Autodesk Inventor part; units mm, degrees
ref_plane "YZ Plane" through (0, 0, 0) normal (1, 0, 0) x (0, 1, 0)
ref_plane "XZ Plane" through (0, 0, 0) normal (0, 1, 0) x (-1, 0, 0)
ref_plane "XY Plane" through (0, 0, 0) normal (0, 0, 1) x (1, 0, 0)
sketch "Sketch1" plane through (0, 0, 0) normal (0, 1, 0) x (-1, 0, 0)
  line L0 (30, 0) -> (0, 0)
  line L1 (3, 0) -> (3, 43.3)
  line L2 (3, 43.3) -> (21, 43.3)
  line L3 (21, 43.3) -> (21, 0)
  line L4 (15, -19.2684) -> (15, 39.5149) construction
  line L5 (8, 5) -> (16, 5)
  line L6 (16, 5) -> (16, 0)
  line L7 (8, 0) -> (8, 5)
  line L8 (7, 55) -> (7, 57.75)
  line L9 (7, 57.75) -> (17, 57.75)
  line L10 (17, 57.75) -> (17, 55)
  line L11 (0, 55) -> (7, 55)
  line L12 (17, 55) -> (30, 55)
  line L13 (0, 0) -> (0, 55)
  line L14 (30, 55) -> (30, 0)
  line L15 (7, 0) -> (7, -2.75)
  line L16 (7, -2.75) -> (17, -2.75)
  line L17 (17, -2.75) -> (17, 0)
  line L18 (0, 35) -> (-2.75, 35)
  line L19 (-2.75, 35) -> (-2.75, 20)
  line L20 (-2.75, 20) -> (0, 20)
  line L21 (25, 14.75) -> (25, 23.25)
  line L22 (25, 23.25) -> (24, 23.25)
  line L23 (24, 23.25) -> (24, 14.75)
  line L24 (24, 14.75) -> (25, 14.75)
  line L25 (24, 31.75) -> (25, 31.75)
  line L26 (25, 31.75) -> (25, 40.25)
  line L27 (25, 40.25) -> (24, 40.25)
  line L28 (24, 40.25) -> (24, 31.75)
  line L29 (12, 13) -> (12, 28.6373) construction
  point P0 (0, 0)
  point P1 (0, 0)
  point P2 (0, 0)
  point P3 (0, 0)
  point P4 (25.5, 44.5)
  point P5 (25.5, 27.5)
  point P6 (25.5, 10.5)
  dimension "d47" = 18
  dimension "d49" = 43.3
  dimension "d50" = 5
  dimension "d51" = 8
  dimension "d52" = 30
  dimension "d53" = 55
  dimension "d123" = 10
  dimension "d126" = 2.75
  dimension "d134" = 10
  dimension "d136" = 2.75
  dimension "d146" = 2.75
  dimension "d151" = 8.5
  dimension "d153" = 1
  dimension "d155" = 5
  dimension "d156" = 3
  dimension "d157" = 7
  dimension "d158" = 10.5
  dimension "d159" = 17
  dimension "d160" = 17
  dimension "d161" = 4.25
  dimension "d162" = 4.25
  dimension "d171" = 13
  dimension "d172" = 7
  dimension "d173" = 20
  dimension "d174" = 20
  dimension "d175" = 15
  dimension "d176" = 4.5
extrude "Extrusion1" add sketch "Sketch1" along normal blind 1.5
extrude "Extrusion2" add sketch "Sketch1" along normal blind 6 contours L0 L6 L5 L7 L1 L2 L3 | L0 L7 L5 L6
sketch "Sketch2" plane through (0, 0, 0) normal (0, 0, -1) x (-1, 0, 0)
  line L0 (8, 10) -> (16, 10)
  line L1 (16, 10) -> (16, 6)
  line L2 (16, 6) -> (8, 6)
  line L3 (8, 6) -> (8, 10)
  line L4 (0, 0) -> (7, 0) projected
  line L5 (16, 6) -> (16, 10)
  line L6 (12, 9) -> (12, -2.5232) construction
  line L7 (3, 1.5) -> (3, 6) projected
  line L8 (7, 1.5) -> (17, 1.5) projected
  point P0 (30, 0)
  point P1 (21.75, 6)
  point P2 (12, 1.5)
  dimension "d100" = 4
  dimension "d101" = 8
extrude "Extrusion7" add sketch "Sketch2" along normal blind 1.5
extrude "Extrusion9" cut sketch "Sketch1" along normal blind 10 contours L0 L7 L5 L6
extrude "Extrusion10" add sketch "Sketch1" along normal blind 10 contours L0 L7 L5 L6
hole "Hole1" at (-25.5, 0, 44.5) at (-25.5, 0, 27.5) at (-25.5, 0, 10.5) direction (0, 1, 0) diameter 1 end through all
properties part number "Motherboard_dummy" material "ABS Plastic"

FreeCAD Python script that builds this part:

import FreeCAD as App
import Part
import Sketcher
Q = App.Units.Quantity


def add_polygon(sketch, points):
    """Adds a closed chain of lines whose ends are joined by coincident constraints."""
    first, n = sketch.GeometryCount, len(points)
    for a, b in zip(points, points[1:] + points[:1]):
        sketch.addGeometry(Part.LineSegment(App.Vector(*a, 0), App.Vector(*b, 0)), False)
    for i in range(n):
        sketch.addConstraint(Sketcher.Constraint("Coincident", first + i, 2, first + (i + 1) % n, 1))

doc = App.newDocument("Part")
body = doc.addObject("PartDesign::Body", "Body")
body.AllowCompound = True

# Sketch on XZ plane
sketch1 = doc.addObject("Sketcher::SketchObject", "Sketch")
body.addObject(sketch1)
sketch1.AttachmentSupport = (doc.XZ_Plane, [""])
sketch1.MapMode = "FlatFace"
add_polygon(sketch1, [(-30, 0), (-30, 55), (-17, 55), (-17, 57.8), (-7, 57.8), (-7, 55), (0, 55), (0, 35), (2.8, 35), (2.8, 20), (0, 20), (0, 0), (-7, 0), (-7, -2.8), (-17, -2.8), (-17, 0)])  # lines 0-15
add_polygon(sketch1, [(-25, 23.2), (-25, 14.8), (-24, 14.8), (-24, 23.2)])  # lines 16-19
add_polygon(sketch1, [(-25, 31.8), (-24, 31.8), (-24, 40.2), (-25, 40.2)])  # lines 20-23
sketch1.addConstraint([
    Sketcher.Constraint("Vertical", 0),
    Sketcher.Constraint("Horizontal", 1),
    Sketcher.Constraint("Vertical", 2),
    Sketcher.Constraint("Horizontal", 3),
    Sketcher.Constraint("Vertical", 4),
    Sketcher.Constraint("Horizontal", 5),
    Sketcher.Constraint("Vertical", 6),
    Sketcher.Constraint("Horizontal", 7),
    Sketcher.Constraint("Vertical", 8),
    Sketcher.Constraint("Horizontal", 9),
    Sketcher.Constraint("Vertical", 10),
    Sketcher.Constraint("Horizontal", 11),
    Sketcher.Constraint("Vertical", 12),
    Sketcher.Constraint("Horizontal", 13),
    Sketcher.Constraint("Vertical", 14),
    Sketcher.Constraint("Horizontal", 15),
    Sketcher.Constraint("Vertical", 16),
    Sketcher.Constraint("Horizontal", 17),
    Sketcher.Constraint("Vertical", 18),
    Sketcher.Constraint("Horizontal", 19),
    Sketcher.Constraint("Horizontal", 20),
    Sketcher.Constraint("Vertical", 21),
    Sketcher.Constraint("Horizontal", 22),
    Sketcher.Constraint("Vertical", 23),
    Sketcher.Constraint("Coincident", 10, 2, -1, 1),
    Sketcher.Constraint("PointOnObject", 5, 2, -2),
    Sketcher.Constraint("PointOnObject", 14, 2, -1),
    Sketcher.Constraint("Horizontal", 1, 2, 4, 2),
    Sketcher.Constraint("Vertical", 4, 2, 11, 2),
    Sketcher.Constraint("Vertical", 2, 2, 13, 2),
    Sketcher.Constraint("Vertical", 18, 2, 20, 2),
    Sketcher.Constraint("Vertical", 19, 2, 22, 2),
    Sketcher.Constraint("Equal", 9, 2),
    Sketcher.Constraint("Equal", 6, 10),
    Sketcher.Constraint("Equal", 4, 12),
    Sketcher.Constraint("Equal", 18, 21),
    Sketcher.Constraint("DistanceX", 1, 1, 1, 2, Q("13 mm")),
    Sketcher.Constraint("DistanceX", 3, 1, 3, 2, Q("10 mm")),
    Sketcher.Constraint("DistanceX", 5, 1, 5, 2, Q("7 mm")),
    Sketcher.Constraint("DistanceX", 17, 1, 17, 2, Q("1 mm")),
    Sketcher.Constraint("DistanceY", 0, 1, 0, 2, Q("55 mm")),
    Sketcher.Constraint("DistanceY", 6, 2, 6, 1, Q("20 mm")),
    Sketcher.Constraint("DistanceY", 16, 2, 16, 1, Q("8.5 mm")),
    Sketcher.Constraint("DistanceX", 15, 2, 16, 2, Q("5 mm")),
    Sketcher.Constraint("DistanceY", 17, 2, 20, 2, Q("17 mm")),
    Sketcher.Constraint("DistanceX", 7, 1, 7, 2, Q("2.75 mm")),
    Sketcher.Constraint("DistanceY", 13, 2, 16, 2, Q("17.5 mm")),
])
pad1 = doc.addObject("PartDesign::Pad", "Pad")
body.addObject(pad1)
pad1.Profile = sketch1
pad1.Length = 1.5
pad1.Reversed = True

# Sketch on XZ plane
sketch2 = doc.addObject("Sketcher::SketchObject", "Sketch001")
body.addObject(sketch2)
sketch2.AttachmentSupport = (doc.XZ_Plane, [""])
sketch2.MapMode = "FlatFace"
add_polygon(sketch2, [(-21, 0), (-21, 43), (-3, 43), (-3, 0)])  # lines 0-3
sketch2.addConstraint([
    Sketcher.Constraint("Vertical", 0),
    Sketcher.Constraint("Horizontal", 1),
    Sketcher.Constraint("Vertical", 2),
    Sketcher.Constraint("Horizontal", 3),
    Sketcher.Constraint("PointOnObject", 2, 2, -1),
    Sketcher.Constraint("DistanceX", 1, 1, 1, 2, Q("18 mm")),
    Sketcher.Constraint("DistanceY", 0, 1, 0, 2, Q("43.3 mm")),
    Sketcher.Constraint("DistanceX", 1, 2, -1, 1, Q("3 mm")),
])
pad2 = doc.addObject("PartDesign::Pad", "Pad001")
body.addObject(pad2)
pad2.Profile = sketch2
pad2.Length = 6
pad2.Reversed = True

# Sketch on XY plane
sketch3 = doc.addObject("Sketcher::SketchObject", "Sketch002")
body.addObject(sketch3)
sketch3.AttachmentSupport = (doc.XY_Plane, [""])
sketch3.MapMode = "FlatFace"
add_polygon(sketch3, [(-16, 10), (-8, 10), (-8, 6), (-16, 6)])  # lines 0-3
sketch3.addConstraint([
    Sketcher.Constraint("Horizontal", 0),
    Sketcher.Constraint("Vertical", 1),
    Sketcher.Constraint("Horizontal", 2),
    Sketcher.Constraint("Vertical", 3),
    Sketcher.Constraint("DistanceX", 0, 1, 0, 2, Q("8 mm")),
    Sketcher.Constraint("DistanceY", 1, 2, 1, 1, Q("4 mm")),
    Sketcher.Constraint("DistanceX", 0, 2, -1, 1, Q("8 mm")),
    Sketcher.Constraint("DistanceY", -1, 1, 0, 2, Q("10 mm")),
])
pad3 = doc.addObject("PartDesign::Pad", "Pad002")
body.addObject(pad3)
pad3.Profile = sketch3
pad3.Length = 1.5
pad3.Reversed = True

# Sketch on XZ plane
sketch4 = doc.addObject("Sketcher::SketchObject", "Sketch003")
body.addObject(sketch4)
sketch4.AttachmentSupport = (doc.XZ_Plane, [""])
sketch4.MapMode = "FlatFace"
add_polygon(sketch4, [(-8, 0), (-16, 0), (-16, 5), (-8, 5)])  # lines 0-3
sketch4.addConstraint([
    Sketcher.Constraint("Horizontal", 0),
    Sketcher.Constraint("Vertical", 1),
    Sketcher.Constraint("Horizontal", 2),
    Sketcher.Constraint("Vertical", 3),
    Sketcher.Constraint("PointOnObject", 0, 2, -1),
    Sketcher.Constraint("DistanceX", 0, 2, 0, 1, Q("8 mm")),
    Sketcher.Constraint("DistanceY", 1, 1, 1, 2, Q("5 mm")),
    Sketcher.Constraint("DistanceX", 2, 2, -1, 1, Q("8 mm")),
])
pocket1 = doc.addObject("PartDesign::Pocket", "Pocket")
body.addObject(pocket1)
pocket1.Profile = sketch4
pocket1.Length = 10

# Sketch on XZ plane
sketch5 = doc.addObject("Sketcher::SketchObject", "Sketch004")
body.addObject(sketch5)
sketch5.AttachmentSupport = (doc.XZ_Plane, [""])
sketch5.MapMode = "FlatFace"
add_polygon(sketch5, [(-8, 0), (-16, 0), (-16, 5), (-8, 5)])  # lines 0-3
sketch5.addConstraint([
    Sketcher.Constraint("Horizontal", 0),
    Sketcher.Constraint("Vertical", 1),
    Sketcher.Constraint("Horizontal", 2),
    Sketcher.Constraint("Vertical", 3),
    Sketcher.Constraint("PointOnObject", 0, 2, -1),
    Sketcher.Constraint("DistanceX", 0, 2, 0, 1, Q("8 mm")),
    Sketcher.Constraint("DistanceY", 1, 1, 1, 2, Q("5 mm")),
    Sketcher.Constraint("DistanceX", 2, 2, -1, 1, Q("8 mm")),
])
pad4 = doc.addObject("PartDesign::Pad", "Pad003")
body.addObject(pad4)
pad4.Profile = sketch5
pad4.Length = 10
pad4.Reversed = True

# Sketch on XZ plane
sketch6 = doc.addObject("Sketcher::SketchObject", "Sketch005")
body.addObject(sketch6)
sketch6.AttachmentSupport = (doc.XZ_Plane, [""])
sketch6.MapMode = "FlatFace"
sketch6.addGeometry([
    Part.Circle(App.Vector(-25.5, 44.5, 0), App.Vector(0, 0, 1), 0.5),
    Part.Circle(App.Vector(-25.5, 27.5, 0), App.Vector(0, 0, 1), 0.5),
    Part.Circle(App.Vector(-25.5, 10.5, 0), App.Vector(0, 0, 1), 0.5),
], False)
sketch6.addConstraint([
    Sketcher.Constraint("Equal", 0, 1),
    Sketcher.Constraint("Equal", 1, 2),
    Sketcher.Constraint("Vertical", 0, 3, 1, 3),
    Sketcher.Constraint("Vertical", 1, 3, 2, 3),
    Sketcher.Constraint("Diameter", 0, Q("1 mm")),
    Sketcher.Constraint("DistanceY", 1, 3, 0, 3, Q("17 mm")),
    Sketcher.Constraint("DistanceY", 2, 3, 1, 3, Q("17 mm")),
    Sketcher.Constraint("DistanceX", 0, 3, -1, 1, Q("25.5 mm")),
    Sketcher.Constraint("DistanceY", -1, 1, 0, 3, Q("44.5 mm")),
])
doc.recompute()
hole = doc.addObject("PartDesign::Hole", "Hole")
body.addObject(hole)
hole.Profile = sketch6
hole.ThreadType = "None"
hole.Diameter = 1
hole.DepthType = "ThroughAll"

doc.recompute()
